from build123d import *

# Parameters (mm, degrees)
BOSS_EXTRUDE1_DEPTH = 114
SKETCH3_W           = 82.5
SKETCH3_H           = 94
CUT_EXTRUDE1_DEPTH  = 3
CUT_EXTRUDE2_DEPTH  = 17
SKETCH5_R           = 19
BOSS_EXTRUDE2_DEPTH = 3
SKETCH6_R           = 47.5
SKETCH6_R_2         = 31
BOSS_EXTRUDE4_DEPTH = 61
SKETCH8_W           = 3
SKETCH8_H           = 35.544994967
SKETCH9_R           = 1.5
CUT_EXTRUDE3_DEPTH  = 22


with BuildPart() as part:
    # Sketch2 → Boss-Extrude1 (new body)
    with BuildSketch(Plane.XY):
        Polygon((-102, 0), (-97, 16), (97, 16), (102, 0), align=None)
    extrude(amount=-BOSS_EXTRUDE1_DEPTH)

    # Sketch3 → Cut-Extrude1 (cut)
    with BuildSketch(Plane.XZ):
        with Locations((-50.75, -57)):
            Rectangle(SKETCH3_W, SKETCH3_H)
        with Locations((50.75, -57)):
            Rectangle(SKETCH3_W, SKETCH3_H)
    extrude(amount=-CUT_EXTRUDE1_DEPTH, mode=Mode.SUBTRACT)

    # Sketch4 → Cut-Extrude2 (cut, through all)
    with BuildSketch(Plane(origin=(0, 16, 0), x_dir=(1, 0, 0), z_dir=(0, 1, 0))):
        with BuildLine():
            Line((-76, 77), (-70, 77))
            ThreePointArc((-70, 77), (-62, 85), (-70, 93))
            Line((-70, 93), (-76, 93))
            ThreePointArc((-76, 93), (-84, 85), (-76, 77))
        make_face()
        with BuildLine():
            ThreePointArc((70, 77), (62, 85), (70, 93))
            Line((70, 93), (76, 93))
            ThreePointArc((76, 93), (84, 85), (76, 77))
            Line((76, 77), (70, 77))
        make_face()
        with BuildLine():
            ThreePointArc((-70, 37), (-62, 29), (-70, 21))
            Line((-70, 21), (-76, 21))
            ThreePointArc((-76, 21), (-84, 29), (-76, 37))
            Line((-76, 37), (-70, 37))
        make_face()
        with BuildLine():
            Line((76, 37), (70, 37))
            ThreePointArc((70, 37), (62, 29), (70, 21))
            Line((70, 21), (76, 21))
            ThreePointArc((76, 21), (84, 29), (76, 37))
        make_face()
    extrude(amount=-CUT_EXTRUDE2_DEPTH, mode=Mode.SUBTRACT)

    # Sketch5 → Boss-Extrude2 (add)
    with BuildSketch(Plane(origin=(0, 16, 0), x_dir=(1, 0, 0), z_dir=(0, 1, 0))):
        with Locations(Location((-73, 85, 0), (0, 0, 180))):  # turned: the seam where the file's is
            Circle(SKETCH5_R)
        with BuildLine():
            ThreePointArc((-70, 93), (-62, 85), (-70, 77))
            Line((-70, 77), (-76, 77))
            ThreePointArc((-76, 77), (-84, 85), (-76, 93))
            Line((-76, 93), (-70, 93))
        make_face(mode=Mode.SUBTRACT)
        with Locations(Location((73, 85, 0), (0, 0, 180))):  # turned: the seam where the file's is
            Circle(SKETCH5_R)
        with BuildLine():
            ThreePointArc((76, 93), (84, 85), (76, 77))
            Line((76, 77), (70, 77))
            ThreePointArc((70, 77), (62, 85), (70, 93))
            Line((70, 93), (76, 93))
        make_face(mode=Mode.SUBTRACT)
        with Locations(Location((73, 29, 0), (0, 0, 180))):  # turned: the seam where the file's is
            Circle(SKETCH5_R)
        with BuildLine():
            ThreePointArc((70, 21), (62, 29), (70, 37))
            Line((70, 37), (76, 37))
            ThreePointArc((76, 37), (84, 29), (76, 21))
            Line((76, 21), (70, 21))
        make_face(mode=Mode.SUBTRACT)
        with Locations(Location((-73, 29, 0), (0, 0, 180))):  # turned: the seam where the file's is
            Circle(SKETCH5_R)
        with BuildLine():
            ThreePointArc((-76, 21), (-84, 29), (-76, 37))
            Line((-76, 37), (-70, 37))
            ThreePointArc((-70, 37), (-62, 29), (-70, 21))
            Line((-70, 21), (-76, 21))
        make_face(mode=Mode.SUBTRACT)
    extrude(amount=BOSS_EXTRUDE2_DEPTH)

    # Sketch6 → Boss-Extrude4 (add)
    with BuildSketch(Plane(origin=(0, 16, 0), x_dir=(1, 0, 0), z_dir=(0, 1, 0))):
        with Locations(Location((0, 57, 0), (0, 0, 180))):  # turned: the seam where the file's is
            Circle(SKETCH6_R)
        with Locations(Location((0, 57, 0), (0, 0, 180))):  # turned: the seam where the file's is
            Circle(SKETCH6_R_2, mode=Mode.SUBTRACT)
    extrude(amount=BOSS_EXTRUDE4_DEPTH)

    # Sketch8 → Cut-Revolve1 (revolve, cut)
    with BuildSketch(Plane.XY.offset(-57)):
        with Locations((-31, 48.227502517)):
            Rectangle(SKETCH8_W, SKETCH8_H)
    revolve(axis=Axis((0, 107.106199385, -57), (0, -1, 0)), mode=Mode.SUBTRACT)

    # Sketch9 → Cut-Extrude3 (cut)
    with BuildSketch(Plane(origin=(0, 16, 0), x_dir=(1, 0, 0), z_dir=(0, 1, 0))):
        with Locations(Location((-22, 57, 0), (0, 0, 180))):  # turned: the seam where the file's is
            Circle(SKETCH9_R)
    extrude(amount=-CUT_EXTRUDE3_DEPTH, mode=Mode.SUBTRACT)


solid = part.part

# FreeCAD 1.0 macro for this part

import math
import FreeCAD as App
import Part
import Sketcher

V = App.Vector
Q = App.Units.Quantity


def add_polygon(sketch, points):
    """Adds a closed chain of lines whose ends are joined by coincident constraints."""
    first, n = sketch.GeometryCount, len(points)
    for a, b in zip(points, points[1:] + points[:1]):
        sketch.addGeometry(Part.LineSegment(App.Vector(*a, 0), App.Vector(*b, 0)), False)
    for i in range(n):
        sketch.addConstraint(Sketcher.Constraint("Coincident", first + i, 2, first + (i + 1) % n, 1))

doc = App.newDocument("Part")
body = doc.addObject("PartDesign::Body", "Body")

# Sketch on XY plane
sketch1 = body.newObject("Sketcher::SketchObject", "Sketch")
sketch1.AttachmentSupport = (doc.getObject("XY_Plane"), [""])
sketch1.MapMode = "FlatFace"
add_polygon(sketch1, [(-97, 16), (-102, 0), (102, 0), (97, 16)])  # lines 0-3
sketch1.addConstraint([
    Sketcher.Constraint("Horizontal", 1),
    Sketcher.Constraint("Horizontal", 3),
    Sketcher.Constraint("Symmetric", 0, 2, 1, 2, -1, 1),
    Sketcher.Constraint("Equal", 0, 2),
    Sketcher.Constraint("DistanceX", 1, 1, 1, 2, Q("204 mm")),
    Sketcher.Constraint("DistanceX", 3, 2, 3, 1, Q("194 mm")),
    Sketcher.Constraint("DistanceY", -1, 1, 2, 2, Q("16 mm")),
])
pad1 = body.newObject("PartDesign::Pad", "Pad")
pad1.Profile = sketch1
pad1.Length = 114
pad1.Reversed = True

# Sketch on XZ plane
sketch2 = body.newObject("Sketcher::SketchObject", "Sketch001")
sketch2.AttachmentSupport = (doc.getObject("XZ_Plane"), [""])
sketch2.MapMode = "FlatFace"
add_polygon(sketch2, [(-92, -10), (-92, -104), (-10, -104), (-10, -10)])  # lines 0-3
add_polygon(sketch2, [(10, -10), (10, -104), (92, -104), (92, -10)])  # lines 4-7
sketch2.addConstraint([
    Sketcher.Constraint("Vertical", 0),
    Sketcher.Constraint("Horizontal", 1),
    Sketcher.Constraint("Vertical", 2),
    Sketcher.Constraint("Horizontal", 3),
    Sketcher.Constraint("Vertical", 4),
    Sketcher.Constraint("Horizontal", 5),
    Sketcher.Constraint("Vertical", 6),
    Sketcher.Constraint("Horizontal", 7),
    Sketcher.Constraint("Symmetric", 1, 2, 4, 2, -2),
    Sketcher.Constraint("Symmetric", 3, 2, 6, 2, -2),
    Sketcher.Constraint("DistanceY", 0, 2, 0, 1, Q("94 mm")),
    Sketcher.Constraint("DistanceX", 1, 1, 1, 2, Q("82.5 mm")),
    Sketcher.Constraint("DistanceX", 0, 2, -1, 1, Q("92 mm")),
    Sketcher.Constraint("DistanceY", 0, 2, -1, 1, Q("104 mm")),
])
pocket1 = body.newObject("PartDesign::Pocket", "Pocket")
pocket1.Profile = sketch2
pocket1.Length = 3

# Sketch on XZ plane
sketch3 = body.newObject("Sketcher::SketchObject", "Sketch002")
sketch3.AttachmentSupport = (doc.getObject("XZ_Plane"), [""])
sketch3.MapMode = "FlatFace"
sketch3.AttachmentOffset = App.Placement(V(0, 0, -16), App.Rotation())
sketch3.addGeometry([
    Part.LineSegment(V(-76, -77, 0), V(-70, -77, 0)),  # 0
    Part.ArcOfCircle(Part.Circle(V(-70, -85, 0), V(0, 0, 1), 8), math.radians(-90), math.radians(90)),  # 1
    Part.LineSegment(V(-70, -93, 0), V(-76, -93, 0)),  # 2
    Part.ArcOfCircle(Part.Circle(V(-76, -85, 0), V(0, 0, 1), 8), math.radians(90), math.radians(270)),  # 3
    Part.ArcOfCircle(Part.Circle(V(70, -85, 0), V(0, 0, 1), 8), math.radians(90), math.radians(270)),  # 4
    Part.LineSegment(V(70, -77, 0), V(76, -77, 0)),  # 5
    Part.ArcOfCircle(Part.Circle(V(76, -85, 0), V(0, 0, 1), 8), math.radians(-90), math.radians(90)),  # 6
    Part.LineSegment(V(76, -93, 0), V(70, -93, 0)),  # 7
    Part.ArcOfCircle(Part.Circle(V(-70, -29, 0), V(0, 0, 1), 8), math.radians(-90), math.radians(90)),  # 8
    Part.LineSegment(V(-70, -37, 0), V(-76, -37, 0)),  # 9
    Part.ArcOfCircle(Part.Circle(V(-76, -29, 0), V(0, 0, 1), 8), math.radians(90), math.radians(270)),  # 10
    Part.LineSegment(V(-76, -21, 0), V(-70, -21, 0)),  # 11
    Part.LineSegment(V(76, -37, 0), V(70, -37, 0)),  # 12
    Part.ArcOfCircle(Part.Circle(V(70, -29, 0), V(0, 0, 1), 8), math.radians(90), math.radians(270)),  # 13
    Part.LineSegment(V(70, -21, 0), V(76, -21, 0)),  # 14
    Part.ArcOfCircle(Part.Circle(V(76, -29, 0), V(0, 0, 1), 8), math.radians(-90), math.radians(90)),  # 15
], False)
sketch3.addConstraint([
    Sketcher.Constraint("Tangent", 0, 2, 1, 2),
    Sketcher.Constraint("Tangent", 1, 1, 2, 1),
    Sketcher.Constraint("Tangent", 2, 2, 3, 2),
    Sketcher.Constraint("Tangent", 3, 1, 0, 1),
    Sketcher.Constraint("Tangent", 4, 1, 5, 1),
    Sketcher.Constraint("Tangent", 5, 2, 6, 2),
    Sketcher.Constraint("Tangent", 6, 1, 7, 1),
    Sketcher.Constraint("Tangent", 7, 2, 4, 2),
    Sketcher.Constraint("Tangent", 8, 1, 9, 1),
    Sketcher.Constraint("Tangent", 9, 2, 10, 2),
    Sketcher.Constraint("Tangent", 10, 1, 11, 1),
    Sketcher.Constraint("Tangent", 11, 2, 8, 2),
    Sketcher.Constraint("Tangent", 12, 2, 13, 2),
    Sketcher.Constraint("Tangent", 13, 1, 14, 1),
    Sketcher.Constraint("Tangent", 14, 2, 15, 2),
    Sketcher.Constraint("Tangent", 15, 1, 12, 1),
    Sketcher.Constraint("Horizontal", 0),
    Sketcher.Constraint("Horizontal", 2),
    Sketcher.Constraint("Horizontal", 5),
    Sketcher.Constraint("Horizontal", 7),
    Sketcher.Constraint("Horizontal", 9),
    Sketcher.Constraint("Horizontal", 11),
    Sketcher.Constraint("Horizontal", 12),
    Sketcher.Constraint("Horizontal", 14),
    Sketcher.Constraint("Equal", 3, 4),
    Sketcher.Constraint("Equal", 6, 8),
    Sketcher.Constraint("Equal", 10, 13),
    Sketcher.Constraint("Symmetric", 1, 3, 4, 3, -2),
    Sketcher.Constraint("Symmetric", 8, 3, 13, 3, -2),
    Sketcher.Constraint("Vertical", 1, 3, 8, 3),
    Sketcher.Constraint("Vertical", 3, 3, 10, 3),
    Sketcher.Constraint("Vertical", 6, 3, 15, 3),
    Sketcher.Constraint("Equal", 2, 5),
    Sketcher.Constraint("Radius", 1, Q("8 mm")),
    Sketcher.Constraint("DistanceX", 0, 1, 0, 2, Q("6 mm")),
    Sketcher.Constraint("DistanceX", 1, 3, -1, 1, Q("70 mm")),
    Sketcher.Constraint("DistanceY", 1, 3, -1, 1, Q("85 mm")),
    Sketcher.Constraint("DistanceY", 8, 3, -1, 1, Q("29 mm")),
])
pocket2 = body.newObject("PartDesign::Pocket", "Pocket001")
pocket2.Profile = sketch3
pocket2.Type = "ThroughAll"
pocket2.Reversed = True

# Sketch on XZ plane
sketch4 = body.newObject("Sketcher::SketchObject", "Sketch003")
sketch4.AttachmentSupport = (doc.getObject("XZ_Plane"), [""])
sketch4.MapMode = "FlatFace"
sketch4.AttachmentOffset = App.Placement(V(0, 0, -16), App.Rotation())
sketch4.addGeometry([
    Part.Circle(V(-73, -85, 0), V(0, 0, 1), 19),  # 0
    Part.LineSegment(V(-76, -93, 0), V(-70, -93, 0)),  # 1
    Part.ArcOfCircle(Part.Circle(V(-70, -85, 0), V(0, 0, 1), 8), math.radians(-90), math.radians(90)),  # 2
    Part.LineSegment(V(-70, -77, 0), V(-76, -77, 0)),  # 3
    Part.ArcOfCircle(Part.Circle(V(-76, -85, 0), V(0, 0, 1), 8), math.radians(90), math.radians(270)),  # 4
    Part.Circle(V(73, -85, 0), V(0, 0, 1), 19),  # 5
    Part.LineSegment(V(70, -93, 0), V(76, -93, 0)),  # 6
    Part.ArcOfCircle(Part.Circle(V(76, -85, 0), V(0, 0, 1), 8), math.radians(-90), math.radians(90)),  # 7
    Part.LineSegment(V(76, -77, 0), V(70, -77, 0)),  # 8
    Part.ArcOfCircle(Part.Circle(V(70, -85, 0), V(0, 0, 1), 8), math.radians(90), math.radians(270)),  # 9
    Part.Circle(V(73, -29, 0), V(0, 0, 1), 19),  # 10
    Part.LineSegment(V(76, -21, 0), V(70, -21, 0)),  # 11
    Part.ArcOfCircle(Part.Circle(V(70, -29, 0), V(0, 0, 1), 8), math.radians(90), math.radians(270)),  # 12
    Part.LineSegment(V(70, -37, 0), V(76, -37, 0)),  # 13
    Part.ArcOfCircle(Part.Circle(V(76, -29, 0), V(0, 0, 1), 8), math.radians(-90), math.radians(90)),  # 14
    Part.Circle(V(-73, -29, 0), V(0, 0, 1), 19),  # 15
    Part.LineSegment(V(-70, -21, 0), V(-76, -21, 0)),  # 16
    Part.ArcOfCircle(Part.Circle(V(-76, -29, 0), V(0, 0, 1), 8), math.radians(90), math.radians(270)),  # 17
    Part.LineSegment(V(-76, -37, 0), V(-70, -37, 0)),  # 18
    Part.ArcOfCircle(Part.Circle(V(-70, -29, 0), V(0, 0, 1), 8), math.radians(-90), math.radians(90)),  # 19
], False)
sketch4.addConstraint([
    Sketcher.Constraint("Tangent", 1, 2, 2, 1),
    Sketcher.Constraint("Tangent", 2, 2, 3, 1),
    Sketcher.Constraint("Tangent", 3, 2, 4, 1),
    Sketcher.Constraint("Tangent", 4, 2, 1, 1),
    Sketcher.Constraint("Tangent", 6, 2, 7, 1),
    Sketcher.Constraint("Tangent", 7, 2, 8, 1),
    Sketcher.Constraint("Tangent", 8, 2, 9, 1),
    Sketcher.Constraint("Tangent", 9, 2, 6, 1),
    Sketcher.Constraint("Tangent", 11, 2, 12, 1),
    Sketcher.Constraint("Tangent", 12, 2, 13, 1),
    Sketcher.Constraint("Tangent", 13, 2, 14, 1),
    Sketcher.Constraint("Tangent", 14, 2, 11, 1),
    Sketcher.Constraint("Tangent", 16, 2, 17, 1),
    Sketcher.Constraint("Tangent", 17, 2, 18, 1),
    Sketcher.Constraint("Tangent", 18, 2, 19, 1),
    Sketcher.Constraint("Tangent", 19, 2, 16, 1),
    Sketcher.Constraint("Horizontal", 1),
    Sketcher.Constraint("Horizontal", 3),
    Sketcher.Constraint("Horizontal", 6),
    Sketcher.Constraint("Horizontal", 8),
    Sketcher.Constraint("Horizontal", 11),
    Sketcher.Constraint("Horizontal", 13),
    Sketcher.Constraint("Horizontal", 16),
    Sketcher.Constraint("Horizontal", 18),
    Sketcher.Constraint("Equal", 0, 5),
    Sketcher.Constraint("Equal", 4, 7),
    Sketcher.Constraint("Equal", 5, 10),
    Sketcher.Constraint("Equal", 9, 12),
    Sketcher.Constraint("Equal", 10, 15),
    Sketcher.Constraint("Equal", 14, 17),
    Sketcher.Constraint("Symmetric", 0, 3, 5, 3, -2),
    Sketcher.Constraint("Symmetric", 4, 3, 7, 3, -2),
    Sketcher.Constraint("Symmetric", 10, 3, 15, 3, -2),
    Sketcher.Constraint("Symmetric", 14, 3, 17, 3, -2),
    Sketcher.Constraint("Horizontal", 0, 3, 2, 3),
    Sketcher.Constraint("Horizontal", 10, 3, 12, 3),
    Sketcher.Constraint("Vertical", 5, 3, 10, 3),
    Sketcher.Constraint("Vertical", 9, 3, 12, 3),
    Sketcher.Constraint("Vertical", 7, 3, 14, 3),
    Sketcher.Constraint("Vertical", 2, 3, 19, 3),
    Sketcher.Constraint("Equal", 3, 6),
    Sketcher.Constraint("Diameter", 0, Q("38 mm")),
    Sketcher.Constraint("Radius", 2, Q("8 mm")),
    Sketcher.Constraint("DistanceX", 1, 1, 1, 2, Q("6 mm")),
    Sketcher.Constraint("DistanceX", 0, 3, -1, 1, Q("73 mm")),
    Sketcher.Constraint("DistanceY", 0, 3, -1, 1, Q("85 mm")),
    Sketcher.Constraint("DistanceX", 2, 3, -1, 1, Q("70 mm")),
    Sketcher.Constraint("DistanceY", 10, 3, -1, 1, Q("29 mm")),
])
pad2 = body.newObject("PartDesign::Pad", "Pad001")
pad2.Profile = sketch4
pad2.Length = 3
pad2.Reversed = True

# Sketch on XZ plane
sketch5 = body.newObject("Sketcher::SketchObject", "Sketch004")
sketch5.AttachmentSupport = (doc.getObject("XZ_Plane"), [""])
sketch5.MapMode = "FlatFace"
sketch5.AttachmentOffset = App.Placement(V(0, 0, -16), App.Rotation())
sketch5.addGeometry([
    Part.Circle(V(0, -57, 0), V(0, 0, 1), 48),
    Part.Circle(V(0, -57, 0), V(0, 0, 1), 31),
], False)
sketch5.addConstraint([
    Sketcher.Constraint("Coincident", 1, 3, 0, 3),
    Sketcher.Constraint("PointOnObject", 0, 3, -2),
    Sketcher.Constraint("Diameter", 0, Q("95 mm")),
    Sketcher.Constraint("Diameter", 1, Q("62 mm")),
    Sketcher.Constraint("DistanceY", 0, 3, -1, 1, Q("57 mm")),
])
pad3 = body.newObject("PartDesign::Pad", "Pad002")
pad3.Profile = sketch5
pad3.Length = 61
pad3.Reversed = True

# Sketch on XY plane
sketch6 = body.newObject("Sketcher::SketchObject", "Sketch005")
sketch6.AttachmentSupport = (doc.getObject("XY_Plane"), [""])
sketch6.MapMode = "FlatFace"
sketch6.AttachmentOffset = App.Placement(V(0, 0, -57), App.Rotation())
add_polygon(sketch6, [(-32.5, 66), (-32.5, 30.5), (-29.5, 30.5), (-29.5, 66)])  # lines 0-3
sketch6.addConstraint([
    Sketcher.Constraint("Vertical", 0),
    Sketcher.Constraint("Horizontal", 1),
    Sketcher.Constraint("Vertical", 2),
    Sketcher.Constraint("Horizontal", 3),
    Sketcher.Constraint("DistanceX", 1, 1, 1, 2, Q("3 mm")),
    Sketcher.Constraint("DistanceY", -1, 1, 2, 2, Q("66 mm")),
    Sketcher.Constraint("DistanceX", 0, 2, -1, 1, Q("32.5 mm")),
    Sketcher.Constraint("DistanceY", 0, 2, 0, 1, Q("35.544995 mm")),
])
groove = body.newObject("PartDesign::Groove", "Groove")
groove.Profile = sketch6
groove.ReferenceAxis = (sketch6, ["V_Axis"])
groove.Angle = 360

# Sketch on XZ plane
sketch7 = body.newObject("Sketcher::SketchObject", "Sketch006")
sketch7.AttachmentSupport = (doc.getObject("XZ_Plane"), [""])
sketch7.MapMode = "FlatFace"
sketch7.AttachmentOffset = App.Placement(V(0, 0, -16), App.Rotation())
sketch7.addGeometry(Part.Circle(V(-22, -57, 0), V(0, 0, 1), 1.5), False)
sketch7.addConstraint([
    Sketcher.Constraint("Diameter", 0, Q("3 mm")),
    Sketcher.Constraint("DistanceX", 0, 3, -1, 1, Q("22 mm")),
    Sketcher.Constraint("DistanceY", 0, 3, -1, 1, Q("57 mm")),
])
pocket3 = body.newObject("PartDesign::Pocket", "Pocket002")
pocket3.Profile = sketch7
pocket3.Length = 22
pocket3.Reversed = True

doc.recompute()
